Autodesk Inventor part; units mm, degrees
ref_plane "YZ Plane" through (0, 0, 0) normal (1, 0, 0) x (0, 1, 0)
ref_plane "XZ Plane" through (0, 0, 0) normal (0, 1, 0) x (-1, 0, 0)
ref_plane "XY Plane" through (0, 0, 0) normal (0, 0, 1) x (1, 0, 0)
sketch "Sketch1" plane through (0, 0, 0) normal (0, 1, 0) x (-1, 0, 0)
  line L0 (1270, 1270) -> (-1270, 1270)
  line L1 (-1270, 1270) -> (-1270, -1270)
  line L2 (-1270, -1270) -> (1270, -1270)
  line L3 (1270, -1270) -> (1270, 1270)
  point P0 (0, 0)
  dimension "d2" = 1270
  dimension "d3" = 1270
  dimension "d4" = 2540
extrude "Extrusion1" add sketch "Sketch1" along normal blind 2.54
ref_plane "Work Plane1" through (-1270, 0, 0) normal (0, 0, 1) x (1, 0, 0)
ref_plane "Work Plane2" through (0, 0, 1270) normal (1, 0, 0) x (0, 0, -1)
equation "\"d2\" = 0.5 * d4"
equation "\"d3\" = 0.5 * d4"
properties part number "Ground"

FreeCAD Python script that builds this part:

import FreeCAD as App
import Part
import Sketcher
Q = App.Units.Quantity

doc = App.newDocument("Part")
body = doc.addObject("PartDesign::Body", "Body")

# Sketch on XZ plane
sketch1 = body.newObject("Sketcher::SketchObject", "Sketch")
sketch1.AttachmentSupport = (doc.getObject("XZ_Plane"), [""])
sketch1.MapMode = "FlatFace"
sketch1.addGeometry([
    Part.LineSegment(App.Vector(-1270, -1270, 0), App.Vector(-1270, 1270, 0)),
    Part.LineSegment(App.Vector(-1270, 1270, 0), App.Vector(1270, 1270, 0)),
    Part.LineSegment(App.Vector(1270, 1270, 0), App.Vector(1270, -1270, 0)),
    Part.LineSegment(App.Vector(1270, -1270, 0), App.Vector(-1270, -1270, 0)),
], False)
sketch1.addConstraint([
    Sketcher.Constraint("Coincident", 0, 2, 1, 1),
    Sketcher.Constraint("Coincident", 1, 2, 2, 1),
    Sketcher.Constraint("Coincident", 2, 2, 3, 1),
    Sketcher.Constraint("Coincident", 3, 2, 0, 1),
    Sketcher.Constraint("Vertical", 0),
    Sketcher.Constraint("Horizontal", 1),
    Sketcher.Constraint("Vertical", 2),
    Sketcher.Constraint("Horizontal", 3),
    Sketcher.Constraint("Symmetric", 0, 2, 2, 2, -1, 1),
    Sketcher.Constraint("Equal", 3, 0),
    Sketcher.Constraint("DistanceX", 1, 1, 1, 2, Q("100 in")),
])
pad1 = body.newObject("PartDesign::Pad", "Pad")
pad1.Profile = sketch1
pad1.Length = Q("0.1 in")
pad1.Reversed = True

doc.recompute()
